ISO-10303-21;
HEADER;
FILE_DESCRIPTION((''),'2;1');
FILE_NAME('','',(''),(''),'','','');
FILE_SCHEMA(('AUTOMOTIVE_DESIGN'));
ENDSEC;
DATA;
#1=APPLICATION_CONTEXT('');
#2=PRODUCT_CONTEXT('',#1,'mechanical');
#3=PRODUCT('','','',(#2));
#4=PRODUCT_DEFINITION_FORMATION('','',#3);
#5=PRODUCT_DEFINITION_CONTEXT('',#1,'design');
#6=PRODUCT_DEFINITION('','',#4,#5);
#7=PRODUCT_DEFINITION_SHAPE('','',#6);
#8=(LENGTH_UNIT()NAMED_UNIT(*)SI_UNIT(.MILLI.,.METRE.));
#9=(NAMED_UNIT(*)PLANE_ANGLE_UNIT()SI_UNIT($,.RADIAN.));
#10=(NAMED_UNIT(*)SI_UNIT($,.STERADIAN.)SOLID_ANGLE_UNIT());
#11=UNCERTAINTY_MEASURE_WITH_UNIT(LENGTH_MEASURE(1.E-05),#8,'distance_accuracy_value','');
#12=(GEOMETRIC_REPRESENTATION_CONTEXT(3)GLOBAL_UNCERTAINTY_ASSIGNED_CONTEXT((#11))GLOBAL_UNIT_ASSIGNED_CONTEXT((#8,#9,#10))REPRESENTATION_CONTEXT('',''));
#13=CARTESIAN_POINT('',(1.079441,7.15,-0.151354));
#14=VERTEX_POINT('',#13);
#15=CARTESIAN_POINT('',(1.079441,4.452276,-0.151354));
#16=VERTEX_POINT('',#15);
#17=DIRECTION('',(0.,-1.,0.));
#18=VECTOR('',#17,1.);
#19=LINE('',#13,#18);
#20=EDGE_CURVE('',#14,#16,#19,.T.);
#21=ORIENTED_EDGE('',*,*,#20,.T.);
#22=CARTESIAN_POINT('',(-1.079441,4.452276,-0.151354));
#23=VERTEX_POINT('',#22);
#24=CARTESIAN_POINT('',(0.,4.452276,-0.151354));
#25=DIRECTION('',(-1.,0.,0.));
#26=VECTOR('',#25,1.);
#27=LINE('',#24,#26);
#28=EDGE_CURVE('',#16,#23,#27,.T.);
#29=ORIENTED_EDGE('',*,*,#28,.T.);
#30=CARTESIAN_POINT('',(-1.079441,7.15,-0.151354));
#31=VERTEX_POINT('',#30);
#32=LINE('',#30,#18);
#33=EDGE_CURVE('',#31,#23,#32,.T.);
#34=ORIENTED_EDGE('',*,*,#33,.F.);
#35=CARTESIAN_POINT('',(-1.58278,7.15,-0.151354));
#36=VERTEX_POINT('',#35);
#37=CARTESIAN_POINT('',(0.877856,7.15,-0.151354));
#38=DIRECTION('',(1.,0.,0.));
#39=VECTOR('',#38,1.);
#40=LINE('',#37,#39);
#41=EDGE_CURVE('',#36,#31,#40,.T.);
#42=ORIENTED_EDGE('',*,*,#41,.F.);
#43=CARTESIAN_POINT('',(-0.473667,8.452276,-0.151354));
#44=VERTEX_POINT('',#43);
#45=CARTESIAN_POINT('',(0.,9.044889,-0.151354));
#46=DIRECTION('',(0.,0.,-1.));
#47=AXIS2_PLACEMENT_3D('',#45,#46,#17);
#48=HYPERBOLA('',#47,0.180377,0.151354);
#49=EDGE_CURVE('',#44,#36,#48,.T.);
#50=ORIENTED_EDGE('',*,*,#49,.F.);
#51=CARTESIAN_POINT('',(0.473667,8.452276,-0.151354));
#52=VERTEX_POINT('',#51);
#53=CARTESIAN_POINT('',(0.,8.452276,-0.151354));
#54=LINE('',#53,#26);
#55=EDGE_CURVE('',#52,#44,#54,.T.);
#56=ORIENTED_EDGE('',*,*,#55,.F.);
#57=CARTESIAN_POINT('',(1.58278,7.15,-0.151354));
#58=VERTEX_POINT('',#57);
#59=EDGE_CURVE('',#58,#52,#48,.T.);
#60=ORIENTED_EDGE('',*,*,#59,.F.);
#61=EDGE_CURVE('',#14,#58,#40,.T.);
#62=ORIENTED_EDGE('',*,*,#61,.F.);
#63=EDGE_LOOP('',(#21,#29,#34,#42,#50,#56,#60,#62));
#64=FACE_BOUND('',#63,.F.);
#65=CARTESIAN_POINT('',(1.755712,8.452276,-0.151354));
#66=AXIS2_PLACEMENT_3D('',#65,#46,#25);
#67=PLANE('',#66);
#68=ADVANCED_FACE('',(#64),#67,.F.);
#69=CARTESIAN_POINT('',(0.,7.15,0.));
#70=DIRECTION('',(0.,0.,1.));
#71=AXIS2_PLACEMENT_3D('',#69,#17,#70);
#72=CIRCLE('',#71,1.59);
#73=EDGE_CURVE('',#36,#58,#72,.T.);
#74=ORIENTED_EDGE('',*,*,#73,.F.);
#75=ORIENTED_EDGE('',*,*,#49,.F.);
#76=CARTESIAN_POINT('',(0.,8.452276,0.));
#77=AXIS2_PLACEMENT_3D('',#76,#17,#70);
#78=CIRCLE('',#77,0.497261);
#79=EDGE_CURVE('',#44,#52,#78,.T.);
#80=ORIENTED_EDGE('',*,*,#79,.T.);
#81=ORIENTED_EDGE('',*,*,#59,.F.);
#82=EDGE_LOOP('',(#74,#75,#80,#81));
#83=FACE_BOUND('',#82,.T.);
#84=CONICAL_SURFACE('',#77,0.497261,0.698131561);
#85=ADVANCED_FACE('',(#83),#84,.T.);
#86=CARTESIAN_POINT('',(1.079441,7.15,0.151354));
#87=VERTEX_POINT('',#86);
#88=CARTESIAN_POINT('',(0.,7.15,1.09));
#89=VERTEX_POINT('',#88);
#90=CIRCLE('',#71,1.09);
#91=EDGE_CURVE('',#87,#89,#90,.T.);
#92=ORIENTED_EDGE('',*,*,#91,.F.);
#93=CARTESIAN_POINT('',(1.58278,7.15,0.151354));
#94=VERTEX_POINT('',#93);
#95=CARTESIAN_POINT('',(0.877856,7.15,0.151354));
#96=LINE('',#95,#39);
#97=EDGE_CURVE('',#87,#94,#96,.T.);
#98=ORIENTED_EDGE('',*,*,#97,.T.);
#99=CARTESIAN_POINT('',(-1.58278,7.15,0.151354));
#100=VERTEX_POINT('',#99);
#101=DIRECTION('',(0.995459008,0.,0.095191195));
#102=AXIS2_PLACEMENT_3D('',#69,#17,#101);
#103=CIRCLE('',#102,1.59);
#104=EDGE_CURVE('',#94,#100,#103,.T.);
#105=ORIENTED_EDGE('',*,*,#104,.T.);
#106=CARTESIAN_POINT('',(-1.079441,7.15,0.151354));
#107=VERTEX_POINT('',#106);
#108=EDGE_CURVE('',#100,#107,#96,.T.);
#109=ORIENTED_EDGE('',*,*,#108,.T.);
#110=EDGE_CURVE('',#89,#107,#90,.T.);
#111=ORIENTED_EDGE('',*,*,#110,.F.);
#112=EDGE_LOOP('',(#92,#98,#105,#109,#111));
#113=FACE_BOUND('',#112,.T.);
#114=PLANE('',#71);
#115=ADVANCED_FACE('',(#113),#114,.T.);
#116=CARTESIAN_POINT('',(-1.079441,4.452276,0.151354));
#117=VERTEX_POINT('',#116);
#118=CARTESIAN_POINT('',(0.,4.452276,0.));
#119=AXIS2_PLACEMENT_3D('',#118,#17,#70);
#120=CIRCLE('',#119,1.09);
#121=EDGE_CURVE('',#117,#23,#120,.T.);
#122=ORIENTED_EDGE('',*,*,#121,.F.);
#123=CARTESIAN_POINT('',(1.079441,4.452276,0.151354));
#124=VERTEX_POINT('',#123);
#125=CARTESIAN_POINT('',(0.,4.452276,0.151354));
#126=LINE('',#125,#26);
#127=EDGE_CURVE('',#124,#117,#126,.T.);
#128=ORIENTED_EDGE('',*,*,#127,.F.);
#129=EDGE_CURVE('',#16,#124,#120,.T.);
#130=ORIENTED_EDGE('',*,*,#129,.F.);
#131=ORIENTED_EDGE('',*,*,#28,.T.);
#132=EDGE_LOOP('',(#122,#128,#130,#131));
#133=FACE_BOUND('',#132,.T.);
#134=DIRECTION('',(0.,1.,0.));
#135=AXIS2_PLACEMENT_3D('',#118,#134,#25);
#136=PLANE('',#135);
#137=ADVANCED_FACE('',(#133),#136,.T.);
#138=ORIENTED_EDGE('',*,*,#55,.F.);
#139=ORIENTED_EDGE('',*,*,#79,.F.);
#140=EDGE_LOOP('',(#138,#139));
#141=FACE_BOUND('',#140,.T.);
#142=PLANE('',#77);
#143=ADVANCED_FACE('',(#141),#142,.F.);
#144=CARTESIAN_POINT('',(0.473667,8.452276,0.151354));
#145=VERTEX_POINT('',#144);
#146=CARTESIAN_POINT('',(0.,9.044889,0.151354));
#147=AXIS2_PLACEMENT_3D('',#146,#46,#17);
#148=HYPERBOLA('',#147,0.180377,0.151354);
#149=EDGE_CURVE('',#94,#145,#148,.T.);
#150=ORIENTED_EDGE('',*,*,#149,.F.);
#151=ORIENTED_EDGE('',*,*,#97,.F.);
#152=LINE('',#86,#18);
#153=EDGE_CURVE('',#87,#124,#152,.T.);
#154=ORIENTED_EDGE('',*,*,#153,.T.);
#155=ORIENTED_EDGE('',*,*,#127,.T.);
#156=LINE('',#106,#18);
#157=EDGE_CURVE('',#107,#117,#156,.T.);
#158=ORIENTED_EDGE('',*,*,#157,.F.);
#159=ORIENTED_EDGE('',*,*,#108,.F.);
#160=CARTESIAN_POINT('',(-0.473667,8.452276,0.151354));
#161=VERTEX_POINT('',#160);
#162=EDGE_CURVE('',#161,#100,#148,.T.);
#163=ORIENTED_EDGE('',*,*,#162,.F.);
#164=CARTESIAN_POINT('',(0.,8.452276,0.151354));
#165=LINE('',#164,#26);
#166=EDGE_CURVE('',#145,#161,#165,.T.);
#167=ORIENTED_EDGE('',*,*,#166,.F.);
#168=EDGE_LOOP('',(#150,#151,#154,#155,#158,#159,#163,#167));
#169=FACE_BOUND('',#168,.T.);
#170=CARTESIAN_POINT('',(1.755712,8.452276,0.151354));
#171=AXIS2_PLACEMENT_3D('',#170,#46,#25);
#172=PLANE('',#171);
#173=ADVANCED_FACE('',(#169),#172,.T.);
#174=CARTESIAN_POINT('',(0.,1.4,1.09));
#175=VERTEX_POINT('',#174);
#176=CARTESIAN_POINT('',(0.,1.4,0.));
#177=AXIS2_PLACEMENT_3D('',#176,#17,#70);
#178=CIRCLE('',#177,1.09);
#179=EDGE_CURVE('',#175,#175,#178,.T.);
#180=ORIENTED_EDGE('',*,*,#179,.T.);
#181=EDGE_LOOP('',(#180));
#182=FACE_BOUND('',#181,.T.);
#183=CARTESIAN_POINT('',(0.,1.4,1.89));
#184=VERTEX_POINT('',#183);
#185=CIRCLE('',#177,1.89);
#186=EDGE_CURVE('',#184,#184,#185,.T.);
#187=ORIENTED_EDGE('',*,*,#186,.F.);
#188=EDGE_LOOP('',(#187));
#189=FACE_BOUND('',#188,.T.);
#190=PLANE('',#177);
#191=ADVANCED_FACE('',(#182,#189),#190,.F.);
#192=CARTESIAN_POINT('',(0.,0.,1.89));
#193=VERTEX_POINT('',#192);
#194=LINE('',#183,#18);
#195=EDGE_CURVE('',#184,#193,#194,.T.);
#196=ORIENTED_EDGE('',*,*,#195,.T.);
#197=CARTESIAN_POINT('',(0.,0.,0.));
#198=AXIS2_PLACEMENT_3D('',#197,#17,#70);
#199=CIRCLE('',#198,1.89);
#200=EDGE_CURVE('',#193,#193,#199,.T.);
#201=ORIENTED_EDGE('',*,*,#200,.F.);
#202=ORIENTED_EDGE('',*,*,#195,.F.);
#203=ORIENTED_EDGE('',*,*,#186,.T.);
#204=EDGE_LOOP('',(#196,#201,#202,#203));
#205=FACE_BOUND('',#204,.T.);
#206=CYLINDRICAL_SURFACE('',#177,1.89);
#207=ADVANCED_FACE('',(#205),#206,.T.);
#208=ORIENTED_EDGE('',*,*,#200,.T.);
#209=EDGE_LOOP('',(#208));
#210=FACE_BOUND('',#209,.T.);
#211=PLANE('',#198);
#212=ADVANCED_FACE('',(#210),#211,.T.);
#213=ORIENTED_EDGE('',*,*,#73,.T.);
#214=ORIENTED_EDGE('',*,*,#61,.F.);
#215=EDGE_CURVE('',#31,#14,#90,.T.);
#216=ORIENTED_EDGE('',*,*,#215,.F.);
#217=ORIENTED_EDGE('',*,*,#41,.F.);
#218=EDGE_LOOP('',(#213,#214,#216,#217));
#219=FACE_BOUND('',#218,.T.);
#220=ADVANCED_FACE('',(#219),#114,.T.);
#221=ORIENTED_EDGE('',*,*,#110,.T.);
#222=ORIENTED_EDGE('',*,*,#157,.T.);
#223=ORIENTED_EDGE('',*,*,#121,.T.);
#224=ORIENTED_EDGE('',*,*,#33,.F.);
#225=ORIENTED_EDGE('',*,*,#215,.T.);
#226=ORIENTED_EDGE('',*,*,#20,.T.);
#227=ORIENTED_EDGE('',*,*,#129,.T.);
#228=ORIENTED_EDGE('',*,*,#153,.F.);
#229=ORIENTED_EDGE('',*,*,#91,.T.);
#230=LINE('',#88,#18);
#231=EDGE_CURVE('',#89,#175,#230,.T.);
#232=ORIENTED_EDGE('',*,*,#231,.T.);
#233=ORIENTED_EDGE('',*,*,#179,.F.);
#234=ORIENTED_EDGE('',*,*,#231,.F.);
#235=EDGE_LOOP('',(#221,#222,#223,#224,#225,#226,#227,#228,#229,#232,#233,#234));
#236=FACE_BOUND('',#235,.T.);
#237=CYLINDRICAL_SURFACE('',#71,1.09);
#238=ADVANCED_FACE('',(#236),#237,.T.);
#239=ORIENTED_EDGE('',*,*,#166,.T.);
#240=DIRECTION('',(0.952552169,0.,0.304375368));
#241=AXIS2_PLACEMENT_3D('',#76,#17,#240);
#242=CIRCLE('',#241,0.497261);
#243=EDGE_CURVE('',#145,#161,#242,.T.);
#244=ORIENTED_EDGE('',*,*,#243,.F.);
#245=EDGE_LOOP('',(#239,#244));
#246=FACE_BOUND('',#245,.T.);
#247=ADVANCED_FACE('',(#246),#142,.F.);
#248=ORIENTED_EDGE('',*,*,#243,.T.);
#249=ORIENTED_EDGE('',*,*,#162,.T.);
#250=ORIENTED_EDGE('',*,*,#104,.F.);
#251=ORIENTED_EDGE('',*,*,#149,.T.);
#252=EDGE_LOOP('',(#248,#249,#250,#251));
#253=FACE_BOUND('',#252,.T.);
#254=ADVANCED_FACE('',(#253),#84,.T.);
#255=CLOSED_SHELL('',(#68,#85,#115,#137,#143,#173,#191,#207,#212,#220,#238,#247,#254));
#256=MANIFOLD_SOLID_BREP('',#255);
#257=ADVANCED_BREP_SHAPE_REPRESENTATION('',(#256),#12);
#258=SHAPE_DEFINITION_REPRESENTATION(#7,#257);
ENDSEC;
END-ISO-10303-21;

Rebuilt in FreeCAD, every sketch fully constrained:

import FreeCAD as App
import Part
import Sketcher

V = App.Vector
Q = App.Units.Quantity

doc = App.newDocument("Part")
body = doc.addObject("PartDesign::Body", "Body")

sketch1 = doc.addObject("Sketcher::SketchObject", "Sketch")
body.addObject(sketch1)
sketch1.AttachmentSupport = (doc.YZ_Plane, [""])
sketch1.MapMode = "FlatFace"
sketch1.addGeometry(Part.LineSegment(V(0, 1.89, 0), V(0, 0, 0)), False)
sketch1.addGeometry(Part.LineSegment(V(0, 0, 0), V(8.452276, 0, 0)), False)
sketch1.addGeometry(Part.LineSegment(V(8.452276, 0, 0), V(8.452276, 0.497261, 0)), False)
sketch1.addGeometry(Part.LineSegment(V(8.452276, 0.497261, 0), V(7.15, 1.59, 0)), False)
sketch1.addGeometry(Part.LineSegment(V(7.15, 1.59, 0), V(7.15, 1.09, 0)), False)
sketch1.addGeometry(Part.LineSegment(V(7.15, 1.09, 0), V(1.4, 1.09, 0)), False)
sketch1.addGeometry(Part.LineSegment(V(1.4, 1.09, 0), V(1.4, 1.89, 0)), False)
sketch1.addGeometry(Part.LineSegment(V(1.4, 1.89, 0), V(0, 1.89, 0)), False)
sketch1.addConstraint(Sketcher.Constraint("Coincident", 0, 2, 1, 1))
sketch1.addConstraint(Sketcher.Constraint("Coincident", 1, 2, 2, 1))
sketch1.addConstraint(Sketcher.Constraint("Coincident", 2, 2, 3, 1))
sketch1.addConstraint(Sketcher.Constraint("Coincident", 3, 2, 4, 1))
sketch1.addConstraint(Sketcher.Constraint("Coincident", 4, 2, 5, 1))
sketch1.addConstraint(Sketcher.Constraint("Coincident", 5, 2, 6, 1))
sketch1.addConstraint(Sketcher.Constraint("Coincident", 6, 2, 7, 1))
sketch1.addConstraint(Sketcher.Constraint("Coincident", 7, 2, 0, 1))
sketch1.addConstraint(Sketcher.Constraint("Vertical", 0))
sketch1.addConstraint(Sketcher.Constraint("Horizontal", 1))
sketch1.addConstraint(Sketcher.Constraint("Vertical", 2))
sketch1.addConstraint(Sketcher.Constraint("Vertical", 4))
sketch1.addConstraint(Sketcher.Constraint("Horizontal", 5))
sketch1.addConstraint(Sketcher.Constraint("Vertical", 6))
sketch1.addConstraint(Sketcher.Constraint("Horizontal", 7))
sketch1.addConstraint(Sketcher.Constraint("Coincident", 0, 2, -1, 1))
sketch1.addConstraint(Sketcher.Constraint("Angle", 3, Q("140.000008 deg")))
sketch1.addConstraint(Sketcher.Constraint("DistanceX", 7, 2, 7, 1, Q("1.4 mm")))
sketch1.addConstraint(Sketcher.Constraint("DistanceY", 4, 2, 4, 1, Q("0.5 mm")))
sketch1.addConstraint(Sketcher.Constraint("DistanceY", 6, 1, 6, 2, Q("0.8 mm")))
sketch1.addConstraint(Sketcher.Constraint("Distance", 3, Q("1.7 mm")))
sketch1.addConstraint(Sketcher.Constraint("DistanceX", 5, 2, 5, 1, Q("5.75 mm")))
sketch1.addConstraint(Sketcher.Constraint("DistanceY", 0, 2, 0, 1, Q("1.89 mm")))
revolution = doc.addObject("PartDesign::Revolution", "Revolution")
body.addObject(revolution)
revolution.Profile = sketch1
revolution.ReferenceAxis = (sketch1, ["H_Axis"])
revolution.Angle = 360

sketch2 = doc.addObject("Sketcher::SketchObject", "Sketch001")
body.addObject(sketch2)
sketch2.AttachmentSupport = (doc.XZ_Plane, [""])
sketch2.MapMode = "FlatFace"
sketch2.AttachmentOffset = App.Placement(V(0, 0, -8.452276), App.Rotation())
sketch2.addGeometry(Part.LineSegment(V(1.755712, 0.151354, 0), V(1.755712, -0.151354, 0)), False)
sketch2.addGeometry(Part.LineSegment(V(1.755712, -0.151354, 0), V(-1.755712, -0.151354, 0)), False)
sketch2.addGeometry(Part.LineSegment(V(-1.755712, -0.151354, 0), V(-1.755712, 0.151354, 0)), False)
sketch2.addGeometry(Part.LineSegment(V(-1.755712, 0.151354, 0), V(1.755712, 0.151354, 0)), False)
sketch2.addConstraint(Sketcher.Constraint("Coincident", 0, 2, 1, 1))
sketch2.addConstraint(Sketcher.Constraint("Coincident", 1, 2, 2, 1))
sketch2.addConstraint(Sketcher.Constraint("Coincident", 2, 2, 3, 1))
sketch2.addConstraint(Sketcher.Constraint("Coincident", 3, 2, 0, 1))
sketch2.addConstraint(Sketcher.Constraint("Vertical", 0))
sketch2.addConstraint(Sketcher.Constraint("Horizontal", 1))
sketch2.addConstraint(Sketcher.Constraint("Vertical", 2))
sketch2.addConstraint(Sketcher.Constraint("Horizontal", 3))
sketch2.addConstraint(Sketcher.Constraint("Symmetric", 0, 2, 2, 2, -1, 1))
sketch2.addConstraint(Sketcher.Constraint("DistanceX", 1, 2, 1, 1, Q("3.511424 mm")))
sketch2.addConstraint(Sketcher.Constraint("DistanceY", 0, 2, 0, 1, Q("0.302708 mm")))
pocket1 = doc.addObject("PartDesign::Pocket", "Pocket")
body.addObject(pocket1)
pocket1.Profile = sketch2
pocket1.Length = 4
pocket1.Reversed = True

doc.recompute()
